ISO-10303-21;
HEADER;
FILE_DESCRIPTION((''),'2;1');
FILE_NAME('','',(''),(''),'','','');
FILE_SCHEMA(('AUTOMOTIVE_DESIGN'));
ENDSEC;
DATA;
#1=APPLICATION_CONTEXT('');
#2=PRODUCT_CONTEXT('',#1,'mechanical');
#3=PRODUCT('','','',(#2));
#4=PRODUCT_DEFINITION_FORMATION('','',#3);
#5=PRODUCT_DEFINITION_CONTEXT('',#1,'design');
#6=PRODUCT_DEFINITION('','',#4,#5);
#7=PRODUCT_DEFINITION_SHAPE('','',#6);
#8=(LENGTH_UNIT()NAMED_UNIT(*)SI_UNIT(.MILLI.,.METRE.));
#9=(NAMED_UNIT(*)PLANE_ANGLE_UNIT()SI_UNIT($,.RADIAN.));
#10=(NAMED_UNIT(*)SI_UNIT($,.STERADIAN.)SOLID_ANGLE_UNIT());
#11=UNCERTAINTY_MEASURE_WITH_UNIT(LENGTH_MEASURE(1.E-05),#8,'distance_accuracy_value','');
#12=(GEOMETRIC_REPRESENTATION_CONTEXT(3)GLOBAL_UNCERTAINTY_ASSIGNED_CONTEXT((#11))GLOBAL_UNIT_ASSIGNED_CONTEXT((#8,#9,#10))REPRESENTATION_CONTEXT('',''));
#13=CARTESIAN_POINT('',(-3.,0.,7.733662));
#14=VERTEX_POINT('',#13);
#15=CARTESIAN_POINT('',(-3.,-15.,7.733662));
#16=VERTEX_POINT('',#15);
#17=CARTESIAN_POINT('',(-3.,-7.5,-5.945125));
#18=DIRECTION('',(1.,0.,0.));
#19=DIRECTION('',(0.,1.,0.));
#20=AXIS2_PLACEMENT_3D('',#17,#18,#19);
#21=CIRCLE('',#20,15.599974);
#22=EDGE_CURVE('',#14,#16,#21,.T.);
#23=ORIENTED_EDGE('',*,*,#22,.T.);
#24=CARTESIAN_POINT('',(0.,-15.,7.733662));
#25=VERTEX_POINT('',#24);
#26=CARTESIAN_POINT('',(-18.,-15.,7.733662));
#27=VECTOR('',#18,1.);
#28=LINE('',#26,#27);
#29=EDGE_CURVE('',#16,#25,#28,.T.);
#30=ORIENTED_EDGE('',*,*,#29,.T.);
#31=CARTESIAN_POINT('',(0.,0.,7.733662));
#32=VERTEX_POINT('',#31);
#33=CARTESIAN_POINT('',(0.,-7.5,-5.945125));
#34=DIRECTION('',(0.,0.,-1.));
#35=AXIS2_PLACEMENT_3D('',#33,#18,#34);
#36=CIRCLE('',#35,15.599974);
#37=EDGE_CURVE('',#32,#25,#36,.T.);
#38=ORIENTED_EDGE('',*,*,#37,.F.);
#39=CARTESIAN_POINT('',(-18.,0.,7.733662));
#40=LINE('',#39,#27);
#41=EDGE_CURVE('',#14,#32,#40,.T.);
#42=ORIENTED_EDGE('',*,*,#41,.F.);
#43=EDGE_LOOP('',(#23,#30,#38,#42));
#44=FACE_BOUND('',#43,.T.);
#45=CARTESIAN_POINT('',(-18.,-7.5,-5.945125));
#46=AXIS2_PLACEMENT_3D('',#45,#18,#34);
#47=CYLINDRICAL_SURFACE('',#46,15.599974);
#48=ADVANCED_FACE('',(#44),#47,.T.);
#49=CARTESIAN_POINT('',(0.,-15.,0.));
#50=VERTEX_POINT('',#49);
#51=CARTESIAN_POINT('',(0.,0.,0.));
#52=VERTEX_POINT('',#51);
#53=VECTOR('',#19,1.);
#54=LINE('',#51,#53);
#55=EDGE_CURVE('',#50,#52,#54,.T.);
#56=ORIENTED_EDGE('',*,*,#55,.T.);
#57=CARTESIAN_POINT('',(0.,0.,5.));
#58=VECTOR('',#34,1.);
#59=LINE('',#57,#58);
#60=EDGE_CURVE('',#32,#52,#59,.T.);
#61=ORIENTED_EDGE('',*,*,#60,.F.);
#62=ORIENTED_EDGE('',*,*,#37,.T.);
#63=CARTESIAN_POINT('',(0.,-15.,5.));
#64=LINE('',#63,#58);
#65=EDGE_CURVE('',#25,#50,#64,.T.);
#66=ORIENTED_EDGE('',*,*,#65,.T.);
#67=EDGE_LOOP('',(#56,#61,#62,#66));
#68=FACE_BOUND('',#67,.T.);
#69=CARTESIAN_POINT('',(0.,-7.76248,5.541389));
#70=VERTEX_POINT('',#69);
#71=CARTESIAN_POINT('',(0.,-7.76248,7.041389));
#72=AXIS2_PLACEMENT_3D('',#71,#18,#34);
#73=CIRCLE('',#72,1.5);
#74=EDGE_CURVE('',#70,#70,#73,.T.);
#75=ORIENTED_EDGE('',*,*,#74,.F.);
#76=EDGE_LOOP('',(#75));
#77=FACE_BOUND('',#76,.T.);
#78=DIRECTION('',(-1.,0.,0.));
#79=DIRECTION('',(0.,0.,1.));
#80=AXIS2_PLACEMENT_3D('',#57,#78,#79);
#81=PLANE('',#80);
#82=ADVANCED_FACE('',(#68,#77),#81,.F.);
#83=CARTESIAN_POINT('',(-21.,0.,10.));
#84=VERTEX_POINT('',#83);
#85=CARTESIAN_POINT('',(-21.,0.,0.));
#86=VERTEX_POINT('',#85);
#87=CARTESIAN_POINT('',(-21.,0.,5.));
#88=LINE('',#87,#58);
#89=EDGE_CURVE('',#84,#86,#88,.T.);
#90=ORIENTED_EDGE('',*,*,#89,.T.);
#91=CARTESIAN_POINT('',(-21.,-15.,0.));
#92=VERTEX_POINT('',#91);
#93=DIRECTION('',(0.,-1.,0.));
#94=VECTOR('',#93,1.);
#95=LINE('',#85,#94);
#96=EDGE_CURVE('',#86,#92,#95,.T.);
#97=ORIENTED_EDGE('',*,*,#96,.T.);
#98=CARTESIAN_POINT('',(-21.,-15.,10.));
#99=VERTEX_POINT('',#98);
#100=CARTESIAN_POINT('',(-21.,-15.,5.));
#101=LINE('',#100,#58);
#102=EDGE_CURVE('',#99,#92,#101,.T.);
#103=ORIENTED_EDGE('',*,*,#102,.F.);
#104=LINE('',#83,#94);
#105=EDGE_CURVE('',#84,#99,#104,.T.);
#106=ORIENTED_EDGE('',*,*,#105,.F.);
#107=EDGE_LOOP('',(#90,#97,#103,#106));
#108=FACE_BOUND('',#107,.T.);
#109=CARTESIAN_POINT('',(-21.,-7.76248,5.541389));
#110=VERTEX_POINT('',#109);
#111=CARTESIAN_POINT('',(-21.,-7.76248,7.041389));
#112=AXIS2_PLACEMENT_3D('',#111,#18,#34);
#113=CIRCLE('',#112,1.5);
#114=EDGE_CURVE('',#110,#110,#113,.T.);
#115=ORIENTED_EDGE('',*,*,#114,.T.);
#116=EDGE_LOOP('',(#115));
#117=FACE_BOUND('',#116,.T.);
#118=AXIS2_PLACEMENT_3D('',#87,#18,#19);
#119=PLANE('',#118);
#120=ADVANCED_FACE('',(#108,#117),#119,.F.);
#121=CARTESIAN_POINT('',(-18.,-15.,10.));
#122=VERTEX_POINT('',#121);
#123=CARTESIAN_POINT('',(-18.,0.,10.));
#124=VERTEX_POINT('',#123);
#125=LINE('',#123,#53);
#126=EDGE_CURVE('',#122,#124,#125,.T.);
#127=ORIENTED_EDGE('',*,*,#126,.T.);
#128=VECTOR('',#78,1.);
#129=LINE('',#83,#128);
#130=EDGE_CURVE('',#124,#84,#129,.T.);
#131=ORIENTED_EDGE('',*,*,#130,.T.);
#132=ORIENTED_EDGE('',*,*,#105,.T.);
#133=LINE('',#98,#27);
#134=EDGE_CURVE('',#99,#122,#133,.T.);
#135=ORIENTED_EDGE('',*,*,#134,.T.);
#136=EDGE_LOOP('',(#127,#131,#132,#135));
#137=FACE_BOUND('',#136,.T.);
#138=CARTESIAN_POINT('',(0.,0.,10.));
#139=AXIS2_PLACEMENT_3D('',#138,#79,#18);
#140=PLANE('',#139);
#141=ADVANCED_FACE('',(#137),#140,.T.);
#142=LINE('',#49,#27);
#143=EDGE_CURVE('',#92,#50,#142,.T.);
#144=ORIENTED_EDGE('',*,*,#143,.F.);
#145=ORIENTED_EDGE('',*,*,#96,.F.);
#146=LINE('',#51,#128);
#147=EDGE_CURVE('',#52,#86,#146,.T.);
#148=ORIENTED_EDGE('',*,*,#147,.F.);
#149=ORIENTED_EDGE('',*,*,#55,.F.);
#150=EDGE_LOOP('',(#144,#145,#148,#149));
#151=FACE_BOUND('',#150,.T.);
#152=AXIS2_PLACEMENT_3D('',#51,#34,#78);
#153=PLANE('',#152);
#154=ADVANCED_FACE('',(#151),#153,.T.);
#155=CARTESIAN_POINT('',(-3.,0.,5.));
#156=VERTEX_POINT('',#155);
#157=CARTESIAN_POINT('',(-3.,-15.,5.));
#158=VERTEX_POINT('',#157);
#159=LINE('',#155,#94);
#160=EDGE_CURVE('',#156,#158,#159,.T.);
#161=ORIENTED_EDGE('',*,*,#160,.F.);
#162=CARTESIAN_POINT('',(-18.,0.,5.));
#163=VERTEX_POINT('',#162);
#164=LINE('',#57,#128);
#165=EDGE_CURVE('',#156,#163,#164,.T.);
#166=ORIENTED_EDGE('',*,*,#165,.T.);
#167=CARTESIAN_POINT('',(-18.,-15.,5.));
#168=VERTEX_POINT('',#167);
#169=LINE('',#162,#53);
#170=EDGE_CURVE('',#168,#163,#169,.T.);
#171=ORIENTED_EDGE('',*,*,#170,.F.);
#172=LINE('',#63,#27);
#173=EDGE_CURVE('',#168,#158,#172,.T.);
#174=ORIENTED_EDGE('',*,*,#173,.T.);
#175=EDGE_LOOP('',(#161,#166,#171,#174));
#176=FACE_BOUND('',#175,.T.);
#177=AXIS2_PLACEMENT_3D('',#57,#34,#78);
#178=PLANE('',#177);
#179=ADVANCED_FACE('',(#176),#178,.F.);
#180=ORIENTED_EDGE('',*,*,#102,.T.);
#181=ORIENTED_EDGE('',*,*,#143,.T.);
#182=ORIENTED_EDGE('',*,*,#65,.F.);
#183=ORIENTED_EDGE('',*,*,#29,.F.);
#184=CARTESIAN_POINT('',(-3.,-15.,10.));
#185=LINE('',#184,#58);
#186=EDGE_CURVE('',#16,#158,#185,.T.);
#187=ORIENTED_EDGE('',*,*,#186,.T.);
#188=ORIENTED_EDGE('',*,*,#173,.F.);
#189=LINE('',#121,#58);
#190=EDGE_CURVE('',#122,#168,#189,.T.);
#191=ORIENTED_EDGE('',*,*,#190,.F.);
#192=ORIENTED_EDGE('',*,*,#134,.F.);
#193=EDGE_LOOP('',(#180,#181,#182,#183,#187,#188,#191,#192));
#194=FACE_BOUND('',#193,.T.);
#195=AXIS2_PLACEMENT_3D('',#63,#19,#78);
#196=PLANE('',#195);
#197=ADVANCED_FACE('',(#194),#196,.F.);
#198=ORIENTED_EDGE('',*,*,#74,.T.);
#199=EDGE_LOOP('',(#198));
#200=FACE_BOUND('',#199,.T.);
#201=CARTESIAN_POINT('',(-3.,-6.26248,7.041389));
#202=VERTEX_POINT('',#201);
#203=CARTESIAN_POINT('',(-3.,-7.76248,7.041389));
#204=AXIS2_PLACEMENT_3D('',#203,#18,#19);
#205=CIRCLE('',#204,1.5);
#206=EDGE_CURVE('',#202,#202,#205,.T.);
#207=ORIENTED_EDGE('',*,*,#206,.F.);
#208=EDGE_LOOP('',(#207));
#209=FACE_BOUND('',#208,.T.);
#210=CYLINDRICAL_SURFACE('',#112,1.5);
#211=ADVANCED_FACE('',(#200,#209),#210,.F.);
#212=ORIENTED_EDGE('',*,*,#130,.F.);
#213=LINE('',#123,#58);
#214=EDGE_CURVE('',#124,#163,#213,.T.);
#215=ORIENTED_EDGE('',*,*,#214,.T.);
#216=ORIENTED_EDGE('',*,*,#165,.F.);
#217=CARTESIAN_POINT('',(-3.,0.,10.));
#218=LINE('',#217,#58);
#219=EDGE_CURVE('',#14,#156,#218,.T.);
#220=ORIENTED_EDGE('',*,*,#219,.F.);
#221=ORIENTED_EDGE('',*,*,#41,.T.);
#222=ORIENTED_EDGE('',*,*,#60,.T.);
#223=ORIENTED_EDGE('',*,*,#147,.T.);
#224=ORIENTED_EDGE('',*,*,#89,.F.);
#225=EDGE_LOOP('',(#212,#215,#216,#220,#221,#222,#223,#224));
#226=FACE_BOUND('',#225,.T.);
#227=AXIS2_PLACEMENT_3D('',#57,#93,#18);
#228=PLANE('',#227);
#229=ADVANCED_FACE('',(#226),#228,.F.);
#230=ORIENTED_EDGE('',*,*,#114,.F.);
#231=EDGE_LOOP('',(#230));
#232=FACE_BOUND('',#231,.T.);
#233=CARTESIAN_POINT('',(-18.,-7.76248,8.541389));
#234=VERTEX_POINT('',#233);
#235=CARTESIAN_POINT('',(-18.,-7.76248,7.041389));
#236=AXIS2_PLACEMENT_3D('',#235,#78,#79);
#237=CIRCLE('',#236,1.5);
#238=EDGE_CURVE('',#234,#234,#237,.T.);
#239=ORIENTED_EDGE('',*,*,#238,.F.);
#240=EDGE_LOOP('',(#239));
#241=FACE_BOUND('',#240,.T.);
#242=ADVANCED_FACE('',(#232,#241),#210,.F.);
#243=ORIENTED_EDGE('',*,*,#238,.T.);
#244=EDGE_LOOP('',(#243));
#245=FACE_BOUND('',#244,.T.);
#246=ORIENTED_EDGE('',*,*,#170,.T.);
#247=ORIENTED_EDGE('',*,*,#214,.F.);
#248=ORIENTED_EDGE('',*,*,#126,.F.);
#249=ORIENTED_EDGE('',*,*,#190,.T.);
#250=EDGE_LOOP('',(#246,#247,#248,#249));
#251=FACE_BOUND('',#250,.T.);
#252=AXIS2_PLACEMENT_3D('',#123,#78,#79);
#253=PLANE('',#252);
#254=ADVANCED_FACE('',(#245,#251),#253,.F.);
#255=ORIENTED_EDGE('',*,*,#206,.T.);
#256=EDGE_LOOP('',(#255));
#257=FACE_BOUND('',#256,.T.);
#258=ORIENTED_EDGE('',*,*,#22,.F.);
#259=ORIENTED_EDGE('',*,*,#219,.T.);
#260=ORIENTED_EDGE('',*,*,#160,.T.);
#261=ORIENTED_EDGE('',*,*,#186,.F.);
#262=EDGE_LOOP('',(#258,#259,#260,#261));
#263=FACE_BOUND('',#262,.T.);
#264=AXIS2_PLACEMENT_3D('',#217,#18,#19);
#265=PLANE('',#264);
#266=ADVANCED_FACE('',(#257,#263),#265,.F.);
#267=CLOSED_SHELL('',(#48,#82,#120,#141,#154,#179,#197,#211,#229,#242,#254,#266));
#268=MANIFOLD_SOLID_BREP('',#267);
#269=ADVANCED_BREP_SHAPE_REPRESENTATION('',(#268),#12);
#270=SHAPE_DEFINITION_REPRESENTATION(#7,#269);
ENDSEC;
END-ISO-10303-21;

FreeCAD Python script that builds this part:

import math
import FreeCAD as App
import Part
import Sketcher
from FreeCAD import Vector

doc = App.newDocument("Part")
body = doc.addObject("PartDesign::Body", "Body")

sketch1 = doc.addObject("Sketcher::SketchObject", "Sketch")
body.addObject(sketch1)
sketch1.AttachmentSupport = (doc.XY_Plane, [""])
sketch1.MapMode = "FlatFace"
sketch1.addGeometry(Part.LineSegment(Vector(-21, 0, 0), Vector(-21, -15, 0)), False)
sketch1.addGeometry(Part.LineSegment(Vector(-21, -15, 0), Vector(0, -15, 0)), False)
sketch1.addGeometry(Part.LineSegment(Vector(0, -15, 0), Vector(0, 0, 0)), False)
sketch1.addGeometry(Part.LineSegment(Vector(0, 0, 0), Vector(-21, 0, 0)), False)
sketch1.addConstraint(Sketcher.Constraint("Coincident", 0, 2, 1, 1))
sketch1.addConstraint(Sketcher.Constraint("Coincident", 1, 2, 2, 1))
sketch1.addConstraint(Sketcher.Constraint("Coincident", 2, 2, 3, 1))
sketch1.addConstraint(Sketcher.Constraint("Coincident", 3, 2, 0, 1))
sketch1.addConstraint(Sketcher.Constraint("Vertical", 0))
sketch1.addConstraint(Sketcher.Constraint("Horizontal", 1))
sketch1.addConstraint(Sketcher.Constraint("Vertical", 2))
sketch1.addConstraint(Sketcher.Constraint("Horizontal", 3))
sketch1.addConstraint(Sketcher.Constraint("Coincident", 2, 2, -1, 1))
sketch1.addConstraint(Sketcher.Constraint("DistanceX", 1, 1, 1, 2, 21.0))
sketch1.addConstraint(Sketcher.Constraint("DistanceY", 0, 2, 0, 1, 15.0))
pad1 = doc.addObject("PartDesign::Pad", "Pad")
body.addObject(pad1)
pad1.Profile = sketch1
pad1.Length = 5

sketch2 = doc.addObject("Sketcher::SketchObject", "Sketch001")
body.addObject(sketch2)
sketch2.AttachmentSupport = (doc.XY_Plane, [""])
sketch2.MapMode = "FlatFace"
sketch2.AttachmentOffset = App.Placement(Vector(0, 0, 5), App.Rotation())
sketch2.addGeometry(Part.LineSegment(Vector(-3, 0, 0), Vector(-3, -15, 0)), False)
sketch2.addGeometry(Part.LineSegment(Vector(-3, -15, 0), Vector(0, -15, 0)), False)
sketch2.addGeometry(Part.LineSegment(Vector(0, -15, 0), Vector(0, 0, 0)), False)
sketch2.addGeometry(Part.LineSegment(Vector(0, 0, 0), Vector(-3, 0, 0)), False)
sketch2.addGeometry(Part.LineSegment(Vector(-21, 0, 0), Vector(-21, -15, 0)), False)
sketch2.addGeometry(Part.LineSegment(Vector(-21, -15, 0), Vector(-18, -15, 0)), False)
sketch2.addGeometry(Part.LineSegment(Vector(-18, -15, 0), Vector(-18, 0, 0)), False)
sketch2.addGeometry(Part.LineSegment(Vector(-18, 0, 0), Vector(-21, 0, 0)), False)
sketch2.addConstraint(Sketcher.Constraint("Coincident", 0, 2, 1, 1))
sketch2.addConstraint(Sketcher.Constraint("Coincident", 1, 2, 2, 1))
sketch2.addConstraint(Sketcher.Constraint("Coincident", 2, 2, 3, 1))
sketch2.addConstraint(Sketcher.Constraint("Coincident", 3, 2, 0, 1))
sketch2.addConstraint(Sketcher.Constraint("Coincident", 4, 2, 5, 1))
sketch2.addConstraint(Sketcher.Constraint("Coincident", 5, 2, 6, 1))
sketch2.addConstraint(Sketcher.Constraint("Coincident", 6, 2, 7, 1))
sketch2.addConstraint(Sketcher.Constraint("Coincident", 7, 2, 4, 1))
sketch2.addConstraint(Sketcher.Constraint("Vertical", 0))
sketch2.addConstraint(Sketcher.Constraint("Horizontal", 1))
sketch2.addConstraint(Sketcher.Constraint("Vertical", 2))
sketch2.addConstraint(Sketcher.Constraint("Horizontal", 3))
sketch2.addConstraint(Sketcher.Constraint("Vertical", 4))
sketch2.addConstraint(Sketcher.Constraint("Horizontal", 5))
sketch2.addConstraint(Sketcher.Constraint("Vertical", 6))
sketch2.addConstraint(Sketcher.Constraint("Horizontal", 7))
sketch2.addConstraint(Sketcher.Constraint("Coincident", 2, 2, -1, 1))
sketch2.addConstraint(Sketcher.Constraint("PointOnObject", 6, 2, -1))
sketch2.addConstraint(Sketcher.Constraint("Horizontal", 1, 2, 4, 2))
sketch2.addConstraint(Sketcher.Constraint("Equal", 3, 5))
sketch2.addConstraint(Sketcher.Constraint("DistanceX", 1, 1, 1, 2, 3.0))
sketch2.addConstraint(Sketcher.Constraint("DistanceY", 0, 2, 0, 1, 15.0))
sketch2.addConstraint(Sketcher.Constraint("DistanceX", 4, 2, -1, 1, 21.0))
pad2 = doc.addObject("PartDesign::Pad", "Pad001")
body.addObject(pad2)
pad2.Profile = sketch2
pad2.Length = 5

sketch3 = doc.addObject("Sketcher::SketchObject", "Sketch002")
body.addObject(sketch3)
sketch3.AttachmentSupport = (doc.YZ_Plane, [""])
sketch3.MapMode = "FlatFace"
sketch3.addGeometry(Part.LineSegment(Vector(0, 7.7, 0), Vector(0, 10, 0)), False)
sketch3.addGeometry(Part.LineSegment(Vector(0, 10, 0), Vector(-15, 10, 0)), False)
sketch3.addGeometry(Part.LineSegment(Vector(-15, 10, 0), Vector(-15, 7.7, 0)), False)
sketch3.addGeometry(Part.ArcOfCircle(Part.Circle(Vector(-7.5, -5.9, 0), Vector(0, 0, 1), 15.6), math.radians(61), math.radians(119)), False)
sketch3.addConstraint(Sketcher.Constraint("Coincident", 0, 2, 1, 1))
sketch3.addConstraint(Sketcher.Constraint("Coincident", 1, 2, 2, 1))
sketch3.addConstraint(Sketcher.Constraint("Coincident", 2, 2, 3, 2))
sketch3.addConstraint(Sketcher.Constraint("Coincident", 3, 1, 0, 1))
sketch3.addConstraint(Sketcher.Constraint("Vertical", 0))
sketch3.addConstraint(Sketcher.Constraint("Horizontal", 1))
sketch3.addConstraint(Sketcher.Constraint("Vertical", 2))
sketch3.addConstraint(Sketcher.Constraint("PointOnObject", 0, 2, -2))
sketch3.addConstraint(Sketcher.Constraint("Horizontal", 2, 2, 3, 1))
sketch3.addConstraint(Sketcher.Constraint("DistanceX", 1, 2, 1, 1, 15.0))
sketch3.addConstraint(Sketcher.Constraint("DistanceY", -1, 1, 0, 2, 10.0))
sketch3.addConstraint(Sketcher.Constraint("Radius", 3, 15.599974))
sketch3.addConstraint(Sketcher.Constraint("DistanceY", 0, 1, 0, 2, 2.266338))
pocket1 = doc.addObject("PartDesign::Pocket", "Pocket")
body.addObject(pocket1)
pocket1.Profile = sketch3
pocket1.Length = 18

sketch4 = doc.addObject("Sketcher::SketchObject", "Sketch003")
body.addObject(sketch4)
sketch4.AttachmentSupport = (doc.YZ_Plane, [""])
sketch4.MapMode = "FlatFace"
sketch4.AttachmentOffset = App.Placement(Vector(0, 0, -18), App.Rotation())
sketch4.addGeometry(Part.Circle(Vector(-7.8, 7, 0), Vector(0, 0, 1), 1.5), False)
sketch4.addConstraint(Sketcher.Constraint("Diameter", 0, 3.0))
sketch4.addConstraint(Sketcher.Constraint("DistanceX", 0, 3, -1, 1, 7.76248))
sketch4.addConstraint(Sketcher.Constraint("DistanceY", -1, 1, 0, 3, 7.041389))
pocket2 = doc.addObject("PartDesign::Pocket", "Pocket001")
body.addObject(pocket2)
pocket2.Profile = sketch4
pocket2.Type = "ThroughAll"
pocket2.Midplane = True

doc.recompute()
